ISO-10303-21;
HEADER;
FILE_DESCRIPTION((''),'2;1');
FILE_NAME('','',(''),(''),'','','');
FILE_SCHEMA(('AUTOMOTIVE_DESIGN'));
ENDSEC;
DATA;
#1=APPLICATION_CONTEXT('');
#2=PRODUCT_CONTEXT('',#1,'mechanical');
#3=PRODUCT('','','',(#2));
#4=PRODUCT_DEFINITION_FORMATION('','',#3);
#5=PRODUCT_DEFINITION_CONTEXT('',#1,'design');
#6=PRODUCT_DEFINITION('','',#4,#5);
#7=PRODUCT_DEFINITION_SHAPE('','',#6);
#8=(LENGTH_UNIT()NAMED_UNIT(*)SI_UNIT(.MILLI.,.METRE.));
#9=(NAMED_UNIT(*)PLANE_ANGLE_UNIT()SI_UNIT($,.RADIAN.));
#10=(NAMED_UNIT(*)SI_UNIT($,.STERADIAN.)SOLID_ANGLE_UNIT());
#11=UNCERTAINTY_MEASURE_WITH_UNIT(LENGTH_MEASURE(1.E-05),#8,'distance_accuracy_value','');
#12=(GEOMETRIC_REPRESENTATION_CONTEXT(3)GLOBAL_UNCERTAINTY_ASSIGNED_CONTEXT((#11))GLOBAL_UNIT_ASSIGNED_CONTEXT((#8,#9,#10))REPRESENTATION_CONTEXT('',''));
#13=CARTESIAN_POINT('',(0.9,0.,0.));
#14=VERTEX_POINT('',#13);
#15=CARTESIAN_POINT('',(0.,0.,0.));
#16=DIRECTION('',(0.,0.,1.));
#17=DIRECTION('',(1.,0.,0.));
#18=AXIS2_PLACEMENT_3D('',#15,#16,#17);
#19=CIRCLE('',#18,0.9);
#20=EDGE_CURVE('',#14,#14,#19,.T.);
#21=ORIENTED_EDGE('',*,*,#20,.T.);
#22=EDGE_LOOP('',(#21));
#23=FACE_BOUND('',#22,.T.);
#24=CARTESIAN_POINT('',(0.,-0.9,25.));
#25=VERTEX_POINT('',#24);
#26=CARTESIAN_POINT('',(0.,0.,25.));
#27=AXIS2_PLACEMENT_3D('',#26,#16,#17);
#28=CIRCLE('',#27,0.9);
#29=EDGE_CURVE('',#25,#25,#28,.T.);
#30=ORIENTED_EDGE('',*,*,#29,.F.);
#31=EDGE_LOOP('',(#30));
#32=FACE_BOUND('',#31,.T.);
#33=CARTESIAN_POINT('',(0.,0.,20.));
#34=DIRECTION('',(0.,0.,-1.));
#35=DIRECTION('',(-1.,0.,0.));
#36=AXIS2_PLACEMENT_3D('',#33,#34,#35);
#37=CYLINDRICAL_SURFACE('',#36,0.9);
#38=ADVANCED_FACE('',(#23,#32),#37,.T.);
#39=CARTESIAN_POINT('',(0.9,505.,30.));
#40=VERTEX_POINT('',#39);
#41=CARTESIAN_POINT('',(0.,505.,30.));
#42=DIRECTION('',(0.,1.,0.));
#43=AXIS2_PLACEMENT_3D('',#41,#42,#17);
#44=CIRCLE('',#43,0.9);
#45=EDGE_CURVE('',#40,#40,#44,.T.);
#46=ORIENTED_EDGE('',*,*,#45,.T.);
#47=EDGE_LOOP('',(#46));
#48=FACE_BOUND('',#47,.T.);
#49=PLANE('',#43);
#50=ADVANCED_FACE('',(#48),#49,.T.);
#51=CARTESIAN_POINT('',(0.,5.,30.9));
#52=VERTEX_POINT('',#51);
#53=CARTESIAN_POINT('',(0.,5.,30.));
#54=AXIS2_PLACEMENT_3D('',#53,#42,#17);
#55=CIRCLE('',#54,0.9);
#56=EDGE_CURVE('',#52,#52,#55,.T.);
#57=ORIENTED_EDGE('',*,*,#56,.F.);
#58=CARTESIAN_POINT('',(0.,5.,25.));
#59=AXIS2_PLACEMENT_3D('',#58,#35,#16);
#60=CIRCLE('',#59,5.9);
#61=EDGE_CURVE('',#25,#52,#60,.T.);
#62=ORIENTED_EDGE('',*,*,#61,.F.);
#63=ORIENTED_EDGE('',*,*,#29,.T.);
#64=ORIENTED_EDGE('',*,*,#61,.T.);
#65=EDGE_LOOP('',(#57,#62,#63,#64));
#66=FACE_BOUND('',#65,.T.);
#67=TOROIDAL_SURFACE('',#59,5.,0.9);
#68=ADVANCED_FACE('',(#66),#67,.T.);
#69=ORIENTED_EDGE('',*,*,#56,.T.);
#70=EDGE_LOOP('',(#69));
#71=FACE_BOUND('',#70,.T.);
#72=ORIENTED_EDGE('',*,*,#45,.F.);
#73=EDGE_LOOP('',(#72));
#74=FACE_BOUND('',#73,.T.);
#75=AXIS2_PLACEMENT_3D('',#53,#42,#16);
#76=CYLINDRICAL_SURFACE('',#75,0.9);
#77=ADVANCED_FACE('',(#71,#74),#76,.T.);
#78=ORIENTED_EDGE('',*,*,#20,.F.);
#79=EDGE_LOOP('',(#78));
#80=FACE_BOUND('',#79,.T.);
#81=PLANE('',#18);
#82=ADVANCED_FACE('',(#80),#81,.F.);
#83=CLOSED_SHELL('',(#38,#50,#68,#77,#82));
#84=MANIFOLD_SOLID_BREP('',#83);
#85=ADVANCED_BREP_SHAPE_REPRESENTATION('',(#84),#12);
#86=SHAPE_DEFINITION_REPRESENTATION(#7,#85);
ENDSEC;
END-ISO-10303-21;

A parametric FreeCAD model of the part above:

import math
import FreeCAD as App
import Part
import Sketcher
from FreeCAD import Vector
Q = App.Units.Quantity

doc = App.newDocument("Part")
body = doc.addObject("PartDesign::Body", "Body")

sketch1 = body.newObject("Sketcher::SketchObject", "Sketch")
sketch1.AttachmentSupport = (doc.getObject("XY_Plane"), [""])
sketch1.MapMode = "FlatFace"
sketch1.addGeometry(Part.Circle(Vector(0, 0, 0), Vector(0, 0, 1), 0.9), False)
sketch1.addConstraint(Sketcher.Constraint("Coincident", 0, 3, -1, 1))
sketch1.addConstraint(Sketcher.Constraint("Diameter", 0, Q("1.8 mm")))
pad1 = body.newObject("PartDesign::Pad", "Pad")
pad1.Profile = sketch1
pad1.Length = 20

sketch2 = body.newObject("Sketcher::SketchObject", "Sketch001")
sketch2.AttachmentSupport = (doc.getObject("XY_Plane"), [""])
sketch2.MapMode = "FlatFace"
sketch2.AttachmentOffset = App.Placement(Vector(0, 0, 20), App.Rotation())
sketch2.addGeometry(Part.Circle(Vector(0, 0, 0), Vector(0, 0, 1), 0.9), False)
sketch2.addConstraint(Sketcher.Constraint("Coincident", 0, 3, -1, 1))
sketch2.addConstraint(Sketcher.Constraint("Diameter", 0, Q("1.8 mm")))

sketch3 = body.newObject("Sketcher::SketchObject", "Sketch002")
sketch3.AttachmentSupport = (doc.getObject("YZ_Plane"), [""])
sketch3.MapMode = "FlatFace"
sketch3.addGeometry(Part.LineSegment(Vector(0, 20, 0), Vector(0, 25, 0)), False)
sketch3.addGeometry(Part.ArcOfCircle(Part.Circle(Vector(5, 25, 0), Vector(0, 0, 1), 5), math.radians(90), math.radians(180)), False)
sketch3.addGeometry(Part.LineSegment(Vector(5, 30, 0), Vector(505, 30, 0)), False)
sketch3.addConstraint(Sketcher.Constraint("Tangent", 0, 2, 1, 2))
sketch3.addConstraint(Sketcher.Constraint("Tangent", 1, 1, 2, 1))
sketch3.addConstraint(Sketcher.Constraint("Vertical", 0))
sketch3.addConstraint(Sketcher.Constraint("Horizontal", 2))
sketch3.addConstraint(Sketcher.Constraint("PointOnObject", 0, 1, -2))
sketch3.addConstraint(Sketcher.Constraint("Radius", 1, Q("5 mm")))
sketch3.addConstraint(Sketcher.Constraint("DistanceX", 2, 1, 2, 2, Q("500 mm")))
sketch3.addConstraint(Sketcher.Constraint("DistanceY", 0, 1, 0, 2, Q("5 mm")))
sketch3.addConstraint(Sketcher.Constraint("DistanceY", -1, 1, 1, 3, Q("25 mm")))
doc.recompute()

additivepipe = body.newObject("PartDesign::AdditivePipe", "AdditivePipe")
additivepipe.Profile = sketch2
additivepipe.Spine = (sketch3, ["Edge1", "Edge2", "Edge3"])

doc.recompute()
